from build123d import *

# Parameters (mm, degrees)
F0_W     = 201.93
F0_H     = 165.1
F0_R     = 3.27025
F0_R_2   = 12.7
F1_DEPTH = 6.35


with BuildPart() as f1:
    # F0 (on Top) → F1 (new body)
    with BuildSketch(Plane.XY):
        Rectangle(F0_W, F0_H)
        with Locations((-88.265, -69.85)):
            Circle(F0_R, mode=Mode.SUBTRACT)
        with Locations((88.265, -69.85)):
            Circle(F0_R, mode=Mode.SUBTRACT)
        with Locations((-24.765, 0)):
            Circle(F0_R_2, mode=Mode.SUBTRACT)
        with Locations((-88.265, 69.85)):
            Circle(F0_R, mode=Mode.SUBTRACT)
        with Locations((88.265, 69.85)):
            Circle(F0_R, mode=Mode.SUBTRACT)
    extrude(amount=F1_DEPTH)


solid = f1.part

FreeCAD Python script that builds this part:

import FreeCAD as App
import Part
import Sketcher
from FreeCAD import Vector
Q = App.Units.Quantity


def add_polygon(sketch, points):
    """Adds a closed chain of lines whose ends are joined by coincident constraints."""
    first, n = sketch.GeometryCount, len(points)
    for a, b in zip(points, points[1:] + points[:1]):
        sketch.addGeometry(Part.LineSegment(App.Vector(*a, 0), App.Vector(*b, 0)), False)
    for i in range(n):
        sketch.addConstraint(Sketcher.Constraint("Coincident", first + i, 2, first + (i + 1) % n, 1))

doc = App.newDocument("Part")
body = doc.addObject("PartDesign::Body", "Body")

sketch1 = body.newObject("Sketcher::SketchObject", "Sketch")
sketch1.AttachmentSupport = (doc.getObject("XY_Plane"), [""])
sketch1.MapMode = "FlatFace"
add_polygon(sketch1, [(-100.965, 82.55), (-100.965, -82.55), (100.965, -82.55), (100.965, 82.55)])
sketch1.addGeometry(Part.Circle(Vector(-88.265, -69.85, 0), Vector(0, 0, 1), 3.27025), False)
sketch1.addGeometry(Part.Circle(Vector(88.265, -69.85, 0), Vector(0, 0, 1), 3.27025), False)
sketch1.addGeometry(Part.Circle(Vector(-24.765, 0, 0), Vector(0, 0, 1), 12.7), False)
sketch1.addGeometry(Part.Circle(Vector(-88.265, 69.85, 0), Vector(0, 0, 1), 3.27025), False)
sketch1.addGeometry(Part.Circle(Vector(88.265, 69.85, 0), Vector(0, 0, 1), 3.27025), False)
sketch1.addConstraint(Sketcher.Constraint("Vertical", 0))
sketch1.addConstraint(Sketcher.Constraint("Horizontal", 1))
sketch1.addConstraint(Sketcher.Constraint("Vertical", 2))
sketch1.addConstraint(Sketcher.Constraint("Horizontal", 3))
sketch1.addConstraint(Sketcher.Constraint("Equal", 4, 5))
sketch1.addConstraint(Sketcher.Constraint("Equal", 5, 7))
sketch1.addConstraint(Sketcher.Constraint("Equal", 7, 8))
sketch1.addConstraint(Sketcher.Constraint("Symmetric", 5, 3, 7, 3, -1, 1))
sketch1.addConstraint(Sketcher.Constraint("Symmetric", 4, 3, 8, 3, -1, 1))
sketch1.addConstraint(Sketcher.Constraint("Symmetric", 0, 2, 2, 2, -1, 1))
sketch1.addConstraint(Sketcher.Constraint("Symmetric", 4, 3, 5, 3, -2))
sketch1.addConstraint(Sketcher.Constraint("PointOnObject", 6, 3, -1))
sketch1.addConstraint(Sketcher.Constraint("Diameter", 6, Q("1 in")))
sketch1.addConstraint(Sketcher.Constraint("DistanceY", 0, 2, 0, 1, Q("6.5 in")))
sketch1.addConstraint(Sketcher.Constraint("DistanceX", 0, 2, 6, 3, Q("3 in")))
sketch1.addConstraint(Sketcher.Constraint("DistanceY", 0, 2, 7, 3, Q("6 in")))
sketch1.addConstraint(Sketcher.Constraint("Diameter", 4, Q("0.2575 in")))
sketch1.addConstraint(Sketcher.Constraint("DistanceX", 1, 1, 1, 2, Q("7.95 in")))
sketch1.addConstraint(Sketcher.Constraint("DistanceX", 4, 3, 6, 3, Q("2.5 in")))
pad1 = body.newObject("PartDesign::Pad", "Pad")
pad1.Profile = sketch1
pad1.Length = Q("0.25 in")

doc.recompute()
